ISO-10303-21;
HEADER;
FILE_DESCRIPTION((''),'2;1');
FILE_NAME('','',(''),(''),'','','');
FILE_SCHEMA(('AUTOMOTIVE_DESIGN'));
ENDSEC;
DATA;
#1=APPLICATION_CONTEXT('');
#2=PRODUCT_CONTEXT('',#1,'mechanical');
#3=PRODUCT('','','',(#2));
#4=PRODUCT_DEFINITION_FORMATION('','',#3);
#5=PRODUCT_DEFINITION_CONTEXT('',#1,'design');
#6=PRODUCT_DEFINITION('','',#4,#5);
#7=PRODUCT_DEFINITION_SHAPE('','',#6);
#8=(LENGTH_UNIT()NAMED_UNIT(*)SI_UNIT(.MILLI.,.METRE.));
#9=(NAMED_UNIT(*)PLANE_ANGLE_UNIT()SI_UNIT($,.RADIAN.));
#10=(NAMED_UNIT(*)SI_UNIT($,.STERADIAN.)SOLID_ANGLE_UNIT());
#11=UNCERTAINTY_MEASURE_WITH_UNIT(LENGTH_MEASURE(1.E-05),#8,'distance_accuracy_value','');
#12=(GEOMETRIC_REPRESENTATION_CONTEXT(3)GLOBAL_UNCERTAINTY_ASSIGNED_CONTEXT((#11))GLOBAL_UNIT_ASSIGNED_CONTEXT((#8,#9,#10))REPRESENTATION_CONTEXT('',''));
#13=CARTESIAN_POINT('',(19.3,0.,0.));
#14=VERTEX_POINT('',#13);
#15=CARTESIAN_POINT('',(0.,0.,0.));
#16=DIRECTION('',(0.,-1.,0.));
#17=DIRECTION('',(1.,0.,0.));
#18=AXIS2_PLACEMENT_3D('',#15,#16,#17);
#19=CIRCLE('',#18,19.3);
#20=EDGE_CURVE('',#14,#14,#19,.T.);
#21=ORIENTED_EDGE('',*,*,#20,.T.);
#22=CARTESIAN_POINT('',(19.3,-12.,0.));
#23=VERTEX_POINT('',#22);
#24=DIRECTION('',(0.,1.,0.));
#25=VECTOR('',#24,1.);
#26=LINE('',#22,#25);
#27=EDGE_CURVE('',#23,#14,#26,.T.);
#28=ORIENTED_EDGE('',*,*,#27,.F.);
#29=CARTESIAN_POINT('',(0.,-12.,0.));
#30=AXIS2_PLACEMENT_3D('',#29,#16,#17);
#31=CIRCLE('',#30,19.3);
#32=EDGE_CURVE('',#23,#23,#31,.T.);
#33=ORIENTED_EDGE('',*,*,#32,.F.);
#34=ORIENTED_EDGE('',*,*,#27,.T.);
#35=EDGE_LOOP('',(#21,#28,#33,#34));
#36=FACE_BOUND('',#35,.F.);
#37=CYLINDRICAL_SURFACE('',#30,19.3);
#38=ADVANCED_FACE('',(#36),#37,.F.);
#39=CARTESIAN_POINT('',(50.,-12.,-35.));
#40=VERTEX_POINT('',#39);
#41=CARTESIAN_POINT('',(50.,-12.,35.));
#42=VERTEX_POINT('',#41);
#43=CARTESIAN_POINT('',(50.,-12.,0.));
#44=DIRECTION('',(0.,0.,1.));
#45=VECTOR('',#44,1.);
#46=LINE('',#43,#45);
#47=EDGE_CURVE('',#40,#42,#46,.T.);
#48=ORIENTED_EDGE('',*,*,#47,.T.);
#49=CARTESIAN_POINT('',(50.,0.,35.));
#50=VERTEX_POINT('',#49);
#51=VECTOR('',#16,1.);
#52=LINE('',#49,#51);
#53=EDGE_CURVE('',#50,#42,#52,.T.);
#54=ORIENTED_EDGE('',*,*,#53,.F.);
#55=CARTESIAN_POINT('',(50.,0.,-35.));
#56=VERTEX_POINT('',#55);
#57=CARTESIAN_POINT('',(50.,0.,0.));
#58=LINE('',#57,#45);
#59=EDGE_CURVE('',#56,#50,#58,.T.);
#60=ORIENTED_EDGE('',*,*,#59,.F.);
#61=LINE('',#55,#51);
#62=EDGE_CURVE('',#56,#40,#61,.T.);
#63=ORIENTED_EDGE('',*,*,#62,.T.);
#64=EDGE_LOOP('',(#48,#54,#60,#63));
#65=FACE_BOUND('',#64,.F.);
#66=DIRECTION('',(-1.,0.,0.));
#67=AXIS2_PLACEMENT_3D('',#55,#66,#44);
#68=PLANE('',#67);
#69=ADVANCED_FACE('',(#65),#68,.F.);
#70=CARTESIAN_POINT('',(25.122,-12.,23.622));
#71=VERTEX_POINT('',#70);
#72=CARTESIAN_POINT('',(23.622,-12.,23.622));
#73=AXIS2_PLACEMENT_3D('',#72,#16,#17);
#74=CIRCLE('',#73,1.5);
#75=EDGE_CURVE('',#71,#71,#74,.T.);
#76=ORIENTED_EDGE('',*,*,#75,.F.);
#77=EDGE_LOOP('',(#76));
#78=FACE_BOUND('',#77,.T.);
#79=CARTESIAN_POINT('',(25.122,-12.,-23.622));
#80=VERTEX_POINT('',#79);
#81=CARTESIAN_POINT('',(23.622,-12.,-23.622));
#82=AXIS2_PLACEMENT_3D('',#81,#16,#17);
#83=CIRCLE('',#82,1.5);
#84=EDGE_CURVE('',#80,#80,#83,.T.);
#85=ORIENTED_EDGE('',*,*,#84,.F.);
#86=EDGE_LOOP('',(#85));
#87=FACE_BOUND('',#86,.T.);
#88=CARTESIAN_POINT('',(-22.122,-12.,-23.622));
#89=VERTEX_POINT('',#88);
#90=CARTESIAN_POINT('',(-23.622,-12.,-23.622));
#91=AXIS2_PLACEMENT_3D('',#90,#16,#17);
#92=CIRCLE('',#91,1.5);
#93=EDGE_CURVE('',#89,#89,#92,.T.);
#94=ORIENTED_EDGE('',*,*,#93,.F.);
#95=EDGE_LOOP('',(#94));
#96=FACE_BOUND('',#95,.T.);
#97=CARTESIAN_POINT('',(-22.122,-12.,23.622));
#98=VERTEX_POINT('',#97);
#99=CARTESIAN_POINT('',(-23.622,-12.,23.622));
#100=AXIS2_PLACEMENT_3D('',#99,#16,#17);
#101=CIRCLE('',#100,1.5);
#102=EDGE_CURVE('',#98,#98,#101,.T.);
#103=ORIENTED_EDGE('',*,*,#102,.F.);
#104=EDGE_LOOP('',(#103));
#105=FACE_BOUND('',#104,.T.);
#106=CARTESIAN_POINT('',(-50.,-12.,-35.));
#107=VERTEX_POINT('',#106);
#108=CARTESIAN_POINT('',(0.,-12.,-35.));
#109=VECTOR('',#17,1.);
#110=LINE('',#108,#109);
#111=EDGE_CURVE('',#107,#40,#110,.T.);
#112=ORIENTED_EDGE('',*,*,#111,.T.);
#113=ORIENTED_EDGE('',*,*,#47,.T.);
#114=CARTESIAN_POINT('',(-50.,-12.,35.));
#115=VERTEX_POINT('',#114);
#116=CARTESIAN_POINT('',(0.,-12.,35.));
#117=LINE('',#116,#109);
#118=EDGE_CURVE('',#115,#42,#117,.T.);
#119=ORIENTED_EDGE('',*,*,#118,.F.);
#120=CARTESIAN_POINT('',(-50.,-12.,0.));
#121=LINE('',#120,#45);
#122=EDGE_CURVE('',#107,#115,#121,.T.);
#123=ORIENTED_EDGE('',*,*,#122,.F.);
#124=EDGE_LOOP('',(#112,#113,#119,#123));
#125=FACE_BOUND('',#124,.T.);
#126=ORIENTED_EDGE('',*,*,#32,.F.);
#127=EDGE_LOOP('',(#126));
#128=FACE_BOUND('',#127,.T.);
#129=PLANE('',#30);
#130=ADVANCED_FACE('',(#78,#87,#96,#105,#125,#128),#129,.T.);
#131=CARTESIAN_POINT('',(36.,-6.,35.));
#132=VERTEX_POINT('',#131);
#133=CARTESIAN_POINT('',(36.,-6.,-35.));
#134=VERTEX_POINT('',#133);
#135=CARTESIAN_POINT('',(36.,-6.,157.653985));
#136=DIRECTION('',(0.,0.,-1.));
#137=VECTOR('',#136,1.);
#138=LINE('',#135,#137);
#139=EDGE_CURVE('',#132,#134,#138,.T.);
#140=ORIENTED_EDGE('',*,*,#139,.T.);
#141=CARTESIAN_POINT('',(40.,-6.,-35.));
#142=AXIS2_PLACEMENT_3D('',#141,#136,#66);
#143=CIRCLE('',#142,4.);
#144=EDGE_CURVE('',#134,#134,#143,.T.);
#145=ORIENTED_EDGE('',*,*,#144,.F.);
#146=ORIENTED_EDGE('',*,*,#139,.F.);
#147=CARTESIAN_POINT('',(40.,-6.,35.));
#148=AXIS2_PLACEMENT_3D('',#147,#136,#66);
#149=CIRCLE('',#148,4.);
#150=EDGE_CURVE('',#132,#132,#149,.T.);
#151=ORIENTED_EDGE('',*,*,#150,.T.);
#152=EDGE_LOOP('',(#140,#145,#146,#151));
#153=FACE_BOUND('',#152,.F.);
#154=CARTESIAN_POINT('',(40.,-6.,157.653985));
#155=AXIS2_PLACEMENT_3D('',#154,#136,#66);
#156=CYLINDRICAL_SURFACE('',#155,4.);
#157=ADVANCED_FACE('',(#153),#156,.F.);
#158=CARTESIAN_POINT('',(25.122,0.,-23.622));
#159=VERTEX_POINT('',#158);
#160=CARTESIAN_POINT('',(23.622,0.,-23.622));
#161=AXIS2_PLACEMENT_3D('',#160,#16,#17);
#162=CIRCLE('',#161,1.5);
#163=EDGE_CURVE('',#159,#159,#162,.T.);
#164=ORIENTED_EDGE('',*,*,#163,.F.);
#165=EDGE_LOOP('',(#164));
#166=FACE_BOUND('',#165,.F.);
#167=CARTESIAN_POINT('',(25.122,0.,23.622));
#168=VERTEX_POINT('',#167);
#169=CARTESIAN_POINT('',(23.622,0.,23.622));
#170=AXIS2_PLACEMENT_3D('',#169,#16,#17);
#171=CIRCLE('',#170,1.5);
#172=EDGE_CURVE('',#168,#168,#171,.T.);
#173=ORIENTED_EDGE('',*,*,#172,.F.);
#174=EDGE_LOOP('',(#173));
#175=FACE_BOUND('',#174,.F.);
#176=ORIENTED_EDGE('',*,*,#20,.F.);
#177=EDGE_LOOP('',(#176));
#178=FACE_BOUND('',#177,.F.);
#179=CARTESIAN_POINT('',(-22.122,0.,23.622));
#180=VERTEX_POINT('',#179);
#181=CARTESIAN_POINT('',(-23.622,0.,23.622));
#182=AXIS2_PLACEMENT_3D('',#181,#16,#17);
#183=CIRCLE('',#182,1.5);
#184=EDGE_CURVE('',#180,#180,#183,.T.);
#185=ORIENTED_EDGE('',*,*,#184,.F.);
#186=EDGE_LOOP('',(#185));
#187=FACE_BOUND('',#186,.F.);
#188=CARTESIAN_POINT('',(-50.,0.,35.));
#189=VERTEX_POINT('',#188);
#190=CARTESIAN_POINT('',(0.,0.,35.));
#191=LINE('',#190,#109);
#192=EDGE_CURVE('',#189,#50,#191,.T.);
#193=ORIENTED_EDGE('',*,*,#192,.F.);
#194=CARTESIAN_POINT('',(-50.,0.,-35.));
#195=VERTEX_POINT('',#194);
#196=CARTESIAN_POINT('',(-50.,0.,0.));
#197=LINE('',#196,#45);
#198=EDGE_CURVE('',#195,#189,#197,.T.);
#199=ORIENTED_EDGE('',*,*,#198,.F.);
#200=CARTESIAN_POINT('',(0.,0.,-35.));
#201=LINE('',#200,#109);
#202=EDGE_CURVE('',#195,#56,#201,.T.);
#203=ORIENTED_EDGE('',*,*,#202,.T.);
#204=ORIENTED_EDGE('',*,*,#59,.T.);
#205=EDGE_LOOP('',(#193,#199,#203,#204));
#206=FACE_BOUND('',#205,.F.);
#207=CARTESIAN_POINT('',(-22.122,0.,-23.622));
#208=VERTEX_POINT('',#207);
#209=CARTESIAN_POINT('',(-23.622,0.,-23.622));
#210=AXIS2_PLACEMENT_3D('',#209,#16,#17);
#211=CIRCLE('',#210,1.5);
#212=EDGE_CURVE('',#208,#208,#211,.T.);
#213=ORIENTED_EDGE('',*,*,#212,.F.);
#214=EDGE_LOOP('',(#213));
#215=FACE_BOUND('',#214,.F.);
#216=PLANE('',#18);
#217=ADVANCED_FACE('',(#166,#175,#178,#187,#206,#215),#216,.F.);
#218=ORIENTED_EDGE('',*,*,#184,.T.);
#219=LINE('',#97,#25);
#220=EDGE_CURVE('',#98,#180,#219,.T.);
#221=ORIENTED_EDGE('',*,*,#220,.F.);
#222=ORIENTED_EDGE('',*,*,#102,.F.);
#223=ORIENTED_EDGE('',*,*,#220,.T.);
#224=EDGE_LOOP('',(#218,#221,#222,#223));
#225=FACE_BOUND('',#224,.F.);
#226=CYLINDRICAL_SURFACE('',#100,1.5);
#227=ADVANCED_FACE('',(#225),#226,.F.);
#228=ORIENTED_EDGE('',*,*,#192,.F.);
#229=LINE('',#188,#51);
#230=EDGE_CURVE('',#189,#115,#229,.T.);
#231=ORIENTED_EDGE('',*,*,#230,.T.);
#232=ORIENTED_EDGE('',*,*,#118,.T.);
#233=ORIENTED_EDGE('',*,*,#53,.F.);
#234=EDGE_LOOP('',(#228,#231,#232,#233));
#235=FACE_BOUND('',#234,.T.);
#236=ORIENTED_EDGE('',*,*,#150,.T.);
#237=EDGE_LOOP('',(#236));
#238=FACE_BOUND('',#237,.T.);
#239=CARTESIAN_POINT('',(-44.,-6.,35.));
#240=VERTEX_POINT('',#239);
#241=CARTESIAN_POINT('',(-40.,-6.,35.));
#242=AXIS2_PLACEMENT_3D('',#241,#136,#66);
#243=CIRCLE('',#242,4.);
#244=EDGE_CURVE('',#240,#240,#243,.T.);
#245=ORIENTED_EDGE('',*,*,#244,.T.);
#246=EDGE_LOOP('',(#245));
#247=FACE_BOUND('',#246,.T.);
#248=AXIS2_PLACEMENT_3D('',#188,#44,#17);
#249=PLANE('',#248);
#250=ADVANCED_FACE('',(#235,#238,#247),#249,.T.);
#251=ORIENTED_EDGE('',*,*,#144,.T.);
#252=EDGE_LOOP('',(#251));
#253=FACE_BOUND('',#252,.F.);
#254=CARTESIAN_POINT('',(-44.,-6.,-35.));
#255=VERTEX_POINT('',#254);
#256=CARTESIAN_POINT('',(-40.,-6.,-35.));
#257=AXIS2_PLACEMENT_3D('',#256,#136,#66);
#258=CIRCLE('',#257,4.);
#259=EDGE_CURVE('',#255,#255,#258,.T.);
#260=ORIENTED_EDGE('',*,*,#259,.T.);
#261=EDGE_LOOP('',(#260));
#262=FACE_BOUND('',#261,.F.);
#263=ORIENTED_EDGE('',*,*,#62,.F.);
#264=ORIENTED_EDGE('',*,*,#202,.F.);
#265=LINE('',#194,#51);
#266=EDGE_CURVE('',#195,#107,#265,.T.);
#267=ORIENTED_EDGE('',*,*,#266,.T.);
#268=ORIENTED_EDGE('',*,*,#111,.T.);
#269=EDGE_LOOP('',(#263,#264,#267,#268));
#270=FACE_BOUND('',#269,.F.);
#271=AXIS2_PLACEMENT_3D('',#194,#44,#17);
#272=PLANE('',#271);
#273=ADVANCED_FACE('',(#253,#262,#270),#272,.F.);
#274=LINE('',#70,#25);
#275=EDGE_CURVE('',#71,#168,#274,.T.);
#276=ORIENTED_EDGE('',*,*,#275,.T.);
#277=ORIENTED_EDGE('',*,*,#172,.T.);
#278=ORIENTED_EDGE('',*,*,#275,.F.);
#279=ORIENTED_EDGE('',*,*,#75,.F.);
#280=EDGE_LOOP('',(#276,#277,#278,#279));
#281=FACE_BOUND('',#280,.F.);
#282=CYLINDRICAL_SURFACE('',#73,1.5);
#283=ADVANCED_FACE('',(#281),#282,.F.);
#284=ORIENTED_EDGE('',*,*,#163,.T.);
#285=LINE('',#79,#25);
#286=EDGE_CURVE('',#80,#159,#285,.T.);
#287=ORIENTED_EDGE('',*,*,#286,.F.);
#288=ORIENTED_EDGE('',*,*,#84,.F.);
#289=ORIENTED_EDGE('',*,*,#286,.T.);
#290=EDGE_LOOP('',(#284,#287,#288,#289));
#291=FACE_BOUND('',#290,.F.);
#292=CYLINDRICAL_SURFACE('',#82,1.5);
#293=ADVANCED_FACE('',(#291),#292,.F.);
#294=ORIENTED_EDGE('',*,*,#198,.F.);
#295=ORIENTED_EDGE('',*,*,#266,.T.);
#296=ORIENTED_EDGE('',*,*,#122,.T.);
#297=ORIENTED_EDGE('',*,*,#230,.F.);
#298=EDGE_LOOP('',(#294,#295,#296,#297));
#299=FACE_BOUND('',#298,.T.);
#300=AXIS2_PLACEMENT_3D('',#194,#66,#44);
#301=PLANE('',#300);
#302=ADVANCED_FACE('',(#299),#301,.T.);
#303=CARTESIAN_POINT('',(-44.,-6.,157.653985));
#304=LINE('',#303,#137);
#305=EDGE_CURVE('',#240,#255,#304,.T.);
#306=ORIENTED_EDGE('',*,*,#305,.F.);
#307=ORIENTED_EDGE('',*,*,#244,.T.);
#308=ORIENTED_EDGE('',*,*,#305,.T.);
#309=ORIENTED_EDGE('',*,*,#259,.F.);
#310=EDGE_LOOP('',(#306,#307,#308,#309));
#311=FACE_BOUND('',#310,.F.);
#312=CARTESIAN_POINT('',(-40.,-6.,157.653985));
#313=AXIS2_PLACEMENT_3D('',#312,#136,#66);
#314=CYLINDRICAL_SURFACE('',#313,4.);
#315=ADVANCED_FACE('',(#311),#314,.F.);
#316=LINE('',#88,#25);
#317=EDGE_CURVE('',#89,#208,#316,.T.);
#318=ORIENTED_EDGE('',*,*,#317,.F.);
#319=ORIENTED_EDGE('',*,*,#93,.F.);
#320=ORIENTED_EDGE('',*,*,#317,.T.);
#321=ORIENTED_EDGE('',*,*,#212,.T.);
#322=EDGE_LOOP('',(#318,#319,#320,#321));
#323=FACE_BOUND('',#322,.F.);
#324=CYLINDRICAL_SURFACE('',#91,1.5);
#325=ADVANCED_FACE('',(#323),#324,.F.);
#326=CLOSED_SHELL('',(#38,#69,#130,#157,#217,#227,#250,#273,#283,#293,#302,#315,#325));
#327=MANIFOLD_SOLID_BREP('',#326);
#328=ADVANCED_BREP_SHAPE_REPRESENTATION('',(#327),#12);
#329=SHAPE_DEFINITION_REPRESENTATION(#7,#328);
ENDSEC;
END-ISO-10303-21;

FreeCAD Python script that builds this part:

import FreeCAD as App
import Part
import Sketcher
Q = App.Units.Quantity

doc = App.newDocument("Part")
body = doc.addObject("PartDesign::Body", "Body")

# Sketch on XZ plane
sketch1 = body.newObject("Sketcher::SketchObject", "Sketch")
sketch1.AttachmentSupport = (doc.getObject("XZ_Plane"), [""])
sketch1.MapMode = "FlatFace"
sketch1.addGeometry([
    Part.LineSegment(App.Vector(-50, 35, 0), App.Vector(-50, -35, 0)),
    Part.LineSegment(App.Vector(-50, -35, 0), App.Vector(50, -35, 0)),
    Part.LineSegment(App.Vector(50, -35, 0), App.Vector(50, 35, 0)),
    Part.LineSegment(App.Vector(50, 35, 0), App.Vector(-50, 35, 0)),
], False)
sketch1.addConstraint([
    Sketcher.Constraint("Coincident", 0, 2, 1, 1),
    Sketcher.Constraint("Coincident", 1, 2, 2, 1),
    Sketcher.Constraint("Coincident", 2, 2, 3, 1),
    Sketcher.Constraint("Coincident", 3, 2, 0, 1),
    Sketcher.Constraint("Vertical", 0),
    Sketcher.Constraint("Horizontal", 1),
    Sketcher.Constraint("Vertical", 2),
    Sketcher.Constraint("Horizontal", 3),
    Sketcher.Constraint("Symmetric", 0, 2, 2, 2, -1, 1),
    Sketcher.Constraint("DistanceX", 1, 1, 1, 2, Q("100 mm")),
    Sketcher.Constraint("DistanceY", 0, 2, 0, 1, Q("70 mm")),
])
pad1 = body.newObject("PartDesign::Pad", "Pad")
pad1.Profile = sketch1
pad1.Length = 12

# Sketch on XZ plane
sketch2 = body.newObject("Sketcher::SketchObject", "Sketch001")
sketch2.AttachmentSupport = (doc.getObject("XZ_Plane"), [""])
sketch2.MapMode = "FlatFace"
sketch2.AttachmentOffset = App.Placement(App.Vector(0, 0, 12), App.Rotation())
sketch2.addGeometry([
    Part.Circle(App.Vector(0, 0, 0), App.Vector(0, 0, 1), 19.3),  # 0
    Part.Circle(App.Vector(-23.6, 23.6, 0), App.Vector(0, 0, 1), 1.5),  # 1
    Part.Circle(App.Vector(23.6, 23.6, 0), App.Vector(0, 0, 1), 1.5),  # 2
    Part.Circle(App.Vector(23.6, -23.6, 0), App.Vector(0, 0, 1), 1.5),  # 3
    Part.Circle(App.Vector(-23.6, -23.6, 0), App.Vector(0, 0, 1), 1.5),  # 4
], False)
sketch2.addConstraint([
    Sketcher.Constraint("Coincident", 0, 3, -1, 1),
    Sketcher.Constraint("Equal", 1, 2),
    Sketcher.Constraint("Equal", 2, 3),
    Sketcher.Constraint("Equal", 3, 4),
    Sketcher.Constraint("Symmetric", 1, 3, 3, 3, -1, 1),
    Sketcher.Constraint("Symmetric", 2, 3, 4, 3, -1, 1),
    Sketcher.Constraint("Symmetric", 1, 3, 2, 3, -2),
    Sketcher.Constraint("Diameter", 1, Q("3 mm")),
    Sketcher.Constraint("Diameter", 0, Q("38.6 mm")),
    Sketcher.Constraint("DistanceX", 1, 3, -1, 1, Q("23.622 mm")),
    Sketcher.Constraint("DistanceY", -1, 1, 1, 3, Q("23.622 mm")),
])
pocket1 = body.newObject("PartDesign::Pocket", "Pocket")
pocket1.Profile = sketch2
pocket1.Type = "ThroughAll"

# Sketch on XY plane
sketch3 = body.newObject("Sketcher::SketchObject", "Sketch002")
sketch3.AttachmentSupport = (doc.getObject("XY_Plane"), [""])
sketch3.MapMode = "FlatFace"
sketch3.AttachmentOffset = App.Placement(App.Vector(0, 0, 35), App.Rotation())
sketch3.addGeometry([
    Part.Circle(App.Vector(-40, -6, 0), App.Vector(0, 0, 1), 4),
    Part.Circle(App.Vector(40, -6, 0), App.Vector(0, 0, 1), 4),
], False)
sketch3.addConstraint([
    Sketcher.Constraint("Equal", 0, 1),
    Sketcher.Constraint("Symmetric", 0, 3, 1, 3, -2),
    Sketcher.Constraint("Diameter", 0, Q("8 mm")),
    Sketcher.Constraint("DistanceX", 0, 3, -1, 1, Q("40 mm")),
    Sketcher.Constraint("DistanceY", 0, 3, -1, 1, Q("6 mm")),
])
doc.recompute()
hole = body.newObject("PartDesign::Hole", "Hole")
hole.Profile = sketch3
hole.ThreadType = "None"
hole.Diameter = 8
hole.DepthType = "ThroughAll"

doc.recompute()
